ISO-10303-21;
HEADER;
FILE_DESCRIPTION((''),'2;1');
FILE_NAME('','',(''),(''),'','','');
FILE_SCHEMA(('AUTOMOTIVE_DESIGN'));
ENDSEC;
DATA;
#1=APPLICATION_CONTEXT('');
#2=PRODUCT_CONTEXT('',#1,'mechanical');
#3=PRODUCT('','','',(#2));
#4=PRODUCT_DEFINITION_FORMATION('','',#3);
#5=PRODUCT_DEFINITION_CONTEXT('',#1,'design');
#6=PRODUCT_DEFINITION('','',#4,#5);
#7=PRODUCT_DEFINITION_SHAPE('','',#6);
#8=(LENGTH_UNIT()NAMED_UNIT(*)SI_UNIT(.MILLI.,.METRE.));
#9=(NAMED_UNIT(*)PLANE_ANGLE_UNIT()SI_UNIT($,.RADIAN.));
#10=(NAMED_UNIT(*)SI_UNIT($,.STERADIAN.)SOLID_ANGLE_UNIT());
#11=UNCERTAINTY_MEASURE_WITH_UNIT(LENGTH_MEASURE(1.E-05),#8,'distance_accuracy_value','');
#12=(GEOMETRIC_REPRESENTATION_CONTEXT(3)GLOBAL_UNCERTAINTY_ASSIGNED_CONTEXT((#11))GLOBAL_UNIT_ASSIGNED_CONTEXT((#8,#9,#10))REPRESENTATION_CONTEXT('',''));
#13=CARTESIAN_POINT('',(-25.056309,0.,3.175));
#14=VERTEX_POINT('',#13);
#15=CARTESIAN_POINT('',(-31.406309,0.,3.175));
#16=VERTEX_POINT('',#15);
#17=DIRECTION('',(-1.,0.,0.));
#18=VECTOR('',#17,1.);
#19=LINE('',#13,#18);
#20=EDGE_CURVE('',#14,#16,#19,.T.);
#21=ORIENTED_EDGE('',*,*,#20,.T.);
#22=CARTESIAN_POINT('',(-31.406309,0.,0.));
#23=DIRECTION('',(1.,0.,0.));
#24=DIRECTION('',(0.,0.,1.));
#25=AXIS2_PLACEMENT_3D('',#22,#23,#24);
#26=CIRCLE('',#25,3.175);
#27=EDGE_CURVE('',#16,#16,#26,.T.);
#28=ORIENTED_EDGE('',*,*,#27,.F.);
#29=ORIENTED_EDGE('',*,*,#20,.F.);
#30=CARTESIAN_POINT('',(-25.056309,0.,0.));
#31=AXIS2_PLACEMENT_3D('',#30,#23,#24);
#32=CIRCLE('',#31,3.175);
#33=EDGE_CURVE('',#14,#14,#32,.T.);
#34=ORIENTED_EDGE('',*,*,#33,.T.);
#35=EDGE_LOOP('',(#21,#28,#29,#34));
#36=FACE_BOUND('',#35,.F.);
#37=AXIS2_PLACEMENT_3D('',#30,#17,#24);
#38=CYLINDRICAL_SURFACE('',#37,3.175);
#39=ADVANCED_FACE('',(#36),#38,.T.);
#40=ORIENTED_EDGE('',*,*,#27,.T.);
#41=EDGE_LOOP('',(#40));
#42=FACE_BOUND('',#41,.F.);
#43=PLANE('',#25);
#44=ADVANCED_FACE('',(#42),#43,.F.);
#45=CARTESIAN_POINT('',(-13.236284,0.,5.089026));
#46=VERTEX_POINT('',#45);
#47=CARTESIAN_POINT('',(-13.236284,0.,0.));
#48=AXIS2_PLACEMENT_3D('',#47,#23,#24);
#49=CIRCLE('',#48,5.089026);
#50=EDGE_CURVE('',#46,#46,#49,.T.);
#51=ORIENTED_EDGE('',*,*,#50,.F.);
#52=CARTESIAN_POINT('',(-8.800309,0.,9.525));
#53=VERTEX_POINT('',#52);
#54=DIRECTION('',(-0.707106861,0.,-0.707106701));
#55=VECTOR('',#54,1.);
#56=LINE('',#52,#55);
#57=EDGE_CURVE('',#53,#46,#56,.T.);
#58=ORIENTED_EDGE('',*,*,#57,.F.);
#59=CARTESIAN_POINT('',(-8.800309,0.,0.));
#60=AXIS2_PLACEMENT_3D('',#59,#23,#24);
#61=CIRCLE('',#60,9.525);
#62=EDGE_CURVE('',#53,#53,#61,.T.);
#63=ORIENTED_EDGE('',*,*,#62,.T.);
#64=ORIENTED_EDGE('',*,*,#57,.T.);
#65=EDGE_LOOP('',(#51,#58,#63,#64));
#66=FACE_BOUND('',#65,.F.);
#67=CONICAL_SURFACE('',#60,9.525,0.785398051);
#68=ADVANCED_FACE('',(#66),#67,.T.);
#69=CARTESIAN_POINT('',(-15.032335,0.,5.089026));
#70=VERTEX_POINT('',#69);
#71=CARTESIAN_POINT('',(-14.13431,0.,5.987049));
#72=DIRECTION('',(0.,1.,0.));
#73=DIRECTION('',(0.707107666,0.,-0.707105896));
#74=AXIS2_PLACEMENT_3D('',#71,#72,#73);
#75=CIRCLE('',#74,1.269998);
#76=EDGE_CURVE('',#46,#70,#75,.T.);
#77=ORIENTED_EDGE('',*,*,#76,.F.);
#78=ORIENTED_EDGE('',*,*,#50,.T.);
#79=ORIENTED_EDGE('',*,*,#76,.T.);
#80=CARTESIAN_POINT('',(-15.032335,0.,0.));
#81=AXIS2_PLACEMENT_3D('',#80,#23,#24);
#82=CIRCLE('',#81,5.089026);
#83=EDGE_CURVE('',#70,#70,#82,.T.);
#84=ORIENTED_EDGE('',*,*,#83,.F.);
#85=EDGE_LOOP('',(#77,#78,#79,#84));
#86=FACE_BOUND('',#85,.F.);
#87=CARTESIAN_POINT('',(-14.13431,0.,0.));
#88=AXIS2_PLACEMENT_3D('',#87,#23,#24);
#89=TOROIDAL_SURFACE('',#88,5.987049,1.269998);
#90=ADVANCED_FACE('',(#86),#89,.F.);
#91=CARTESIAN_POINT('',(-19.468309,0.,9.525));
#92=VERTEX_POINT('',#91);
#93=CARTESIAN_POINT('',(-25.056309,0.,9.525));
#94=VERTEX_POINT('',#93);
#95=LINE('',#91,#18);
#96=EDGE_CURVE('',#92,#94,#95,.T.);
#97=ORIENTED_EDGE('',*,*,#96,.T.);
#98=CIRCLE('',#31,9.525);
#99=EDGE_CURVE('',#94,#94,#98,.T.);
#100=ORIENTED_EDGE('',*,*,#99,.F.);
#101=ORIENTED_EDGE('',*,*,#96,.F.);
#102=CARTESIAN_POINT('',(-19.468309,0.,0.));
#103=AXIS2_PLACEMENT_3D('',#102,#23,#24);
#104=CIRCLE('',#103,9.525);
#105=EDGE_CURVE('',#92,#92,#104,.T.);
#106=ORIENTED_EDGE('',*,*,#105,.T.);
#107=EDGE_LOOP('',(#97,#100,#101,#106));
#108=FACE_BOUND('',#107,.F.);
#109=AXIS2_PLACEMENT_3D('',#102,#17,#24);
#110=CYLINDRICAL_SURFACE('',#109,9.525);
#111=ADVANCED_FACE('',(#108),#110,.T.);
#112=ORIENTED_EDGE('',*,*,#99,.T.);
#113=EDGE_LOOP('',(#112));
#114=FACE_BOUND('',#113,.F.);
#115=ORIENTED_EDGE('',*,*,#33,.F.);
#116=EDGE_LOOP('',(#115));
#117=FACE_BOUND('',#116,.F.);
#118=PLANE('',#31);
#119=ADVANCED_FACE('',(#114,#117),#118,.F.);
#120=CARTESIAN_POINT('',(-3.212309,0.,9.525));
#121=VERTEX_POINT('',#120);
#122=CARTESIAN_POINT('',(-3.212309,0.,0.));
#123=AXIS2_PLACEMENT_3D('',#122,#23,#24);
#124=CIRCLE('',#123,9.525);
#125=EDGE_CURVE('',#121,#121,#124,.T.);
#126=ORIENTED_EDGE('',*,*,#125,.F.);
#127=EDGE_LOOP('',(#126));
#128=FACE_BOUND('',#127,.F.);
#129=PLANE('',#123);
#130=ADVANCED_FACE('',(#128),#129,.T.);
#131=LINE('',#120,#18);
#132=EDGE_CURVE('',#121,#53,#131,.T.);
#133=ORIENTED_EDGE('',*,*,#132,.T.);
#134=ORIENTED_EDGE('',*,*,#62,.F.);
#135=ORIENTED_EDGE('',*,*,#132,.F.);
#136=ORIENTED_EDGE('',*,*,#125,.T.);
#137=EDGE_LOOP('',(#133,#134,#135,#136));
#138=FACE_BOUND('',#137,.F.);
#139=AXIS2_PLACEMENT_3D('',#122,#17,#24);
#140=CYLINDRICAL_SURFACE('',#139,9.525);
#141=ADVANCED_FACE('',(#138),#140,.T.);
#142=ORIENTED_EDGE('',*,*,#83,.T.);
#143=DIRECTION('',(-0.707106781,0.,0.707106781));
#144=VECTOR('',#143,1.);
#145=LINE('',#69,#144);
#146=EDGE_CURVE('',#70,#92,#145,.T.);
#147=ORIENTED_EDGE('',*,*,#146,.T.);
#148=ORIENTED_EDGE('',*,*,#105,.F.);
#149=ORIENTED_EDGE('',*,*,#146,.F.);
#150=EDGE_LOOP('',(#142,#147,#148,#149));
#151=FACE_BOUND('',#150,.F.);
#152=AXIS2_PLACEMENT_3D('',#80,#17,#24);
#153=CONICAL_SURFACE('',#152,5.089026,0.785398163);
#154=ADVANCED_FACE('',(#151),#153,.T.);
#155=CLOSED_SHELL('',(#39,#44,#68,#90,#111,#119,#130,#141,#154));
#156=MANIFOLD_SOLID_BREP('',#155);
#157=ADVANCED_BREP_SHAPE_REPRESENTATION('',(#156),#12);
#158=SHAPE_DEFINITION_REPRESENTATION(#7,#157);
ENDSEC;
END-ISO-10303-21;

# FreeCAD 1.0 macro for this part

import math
import FreeCAD as App
import Part
import Sketcher
Q = App.Units.Quantity

doc = App.newDocument("Part")
body = doc.addObject("PartDesign::Body", "Body")

# Sketch on XZ plane
sketch1 = body.newObject("Sketcher::SketchObject", "Sketch")
sketch1.AttachmentSupport = (doc.getObject("XZ_Plane"), [""])
sketch1.MapMode = "FlatFace"
sketch1.addGeometry(Part.LineSegment(App.Vector(-31.406309, 0, 0), App.Vector(-3.212309, 0, 0)), False)
sketch1.addGeometry(Part.LineSegment(App.Vector(-3.212309, 0, 0), App.Vector(-3.212309, 9.525, 0)), False)
sketch1.addGeometry(Part.LineSegment(App.Vector(-3.212309, 9.525, 0), App.Vector(-8.800309, 9.525, 0)), False)
sketch1.addGeometry(Part.LineSegment(App.Vector(-8.800309, 9.525, 0), App.Vector(-13.236284, 5.089026, 0)), False)
sketch1.addGeometry(Part.ArcOfCircle(Part.Circle(App.Vector(-14.13431, 5.987049, 0), App.Vector(0, 0, 1), 1.269998), math.radians(-135.000072), math.radians(-44.999928)), False)
sketch1.addGeometry(Part.LineSegment(App.Vector(-15.032335, 5.089026, 0), App.Vector(-19.468309, 9.525, 0)), False)
sketch1.addGeometry(Part.LineSegment(App.Vector(-19.468309, 9.525, 0), App.Vector(-25.056309, 9.525, 0)), False)
sketch1.addGeometry(Part.LineSegment(App.Vector(-25.056309, 9.525, 0), App.Vector(-25.056309, 3.175, 0)), False)
sketch1.addGeometry(Part.LineSegment(App.Vector(-25.056309, 3.175, 0), App.Vector(-31.406309, 3.175, 0)), False)
sketch1.addGeometry(Part.LineSegment(App.Vector(-31.406309, 3.175, 0), App.Vector(-31.406309, 0, 0)), False)
sketch1.addConstraint(Sketcher.Constraint("Coincident", 0, 2, 1, 1))
sketch1.addConstraint(Sketcher.Constraint("Coincident", 1, 2, 2, 1))
sketch1.addConstraint(Sketcher.Constraint("Coincident", 2, 2, 3, 1))
sketch1.addConstraint(Sketcher.Constraint("Tangent", 3, 2, 4, 2))
sketch1.addConstraint(Sketcher.Constraint("Tangent", 4, 1, 5, 1))
sketch1.addConstraint(Sketcher.Constraint("Coincident", 5, 2, 6, 1))
sketch1.addConstraint(Sketcher.Constraint("Coincident", 6, 2, 7, 1))
sketch1.addConstraint(Sketcher.Constraint("Coincident", 7, 2, 8, 1))
sketch1.addConstraint(Sketcher.Constraint("Coincident", 8, 2, 9, 1))
sketch1.addConstraint(Sketcher.Constraint("Coincident", 9, 2, 0, 1))
sketch1.addConstraint(Sketcher.Constraint("Horizontal", 0))
sketch1.addConstraint(Sketcher.Constraint("Vertical", 1))
sketch1.addConstraint(Sketcher.Constraint("Horizontal", 2))
sketch1.addConstraint(Sketcher.Constraint("Horizontal", 6))
sketch1.addConstraint(Sketcher.Constraint("Vertical", 7))
sketch1.addConstraint(Sketcher.Constraint("Horizontal", 8))
sketch1.addConstraint(Sketcher.Constraint("Vertical", 9))
sketch1.addConstraint(Sketcher.Constraint("PointOnObject", 0, 2, -1))
sketch1.addConstraint(Sketcher.Constraint("Perpendicular", 3, 5))
sketch1.addConstraint(Sketcher.Constraint("Horizontal", 3, 2, 4, 1))
sketch1.addConstraint(Sketcher.Constraint("Horizontal", 2, 2, 5, 2))
sketch1.addConstraint(Sketcher.Constraint("Equal", 2, 6))
sketch1.addConstraint(Sketcher.Constraint("Equal", 8, 7))
sketch1.addConstraint(Sketcher.Constraint("Radius", 4, Q("0.0499999 in")))
sketch1.addConstraint(Sketcher.Constraint("DistanceX", 0, 1, 0, 2, Q("1.11 in")))
sketch1.addConstraint(Sketcher.Constraint("DistanceX", 2, 2, 2, 1, Q("0.22 in")))
sketch1.addConstraint(Sketcher.Constraint("DistanceX", 8, 2, 8, 1, Q("0.25 in")))
sketch1.addConstraint(Sketcher.Constraint("DistanceY", 1, 1, 1, 2, Q("0.375 in")))
sketch1.addConstraint(Sketcher.Constraint("DistanceX", 4, 3, -1, 1, Q("14.13431 mm")))
revolution = body.newObject("PartDesign::Revolution", "Revolution")
revolution.Profile = sketch1
revolution.ReferenceAxis = (sketch1, ["H_Axis"])
revolution.Angle = 360

doc.recompute()
